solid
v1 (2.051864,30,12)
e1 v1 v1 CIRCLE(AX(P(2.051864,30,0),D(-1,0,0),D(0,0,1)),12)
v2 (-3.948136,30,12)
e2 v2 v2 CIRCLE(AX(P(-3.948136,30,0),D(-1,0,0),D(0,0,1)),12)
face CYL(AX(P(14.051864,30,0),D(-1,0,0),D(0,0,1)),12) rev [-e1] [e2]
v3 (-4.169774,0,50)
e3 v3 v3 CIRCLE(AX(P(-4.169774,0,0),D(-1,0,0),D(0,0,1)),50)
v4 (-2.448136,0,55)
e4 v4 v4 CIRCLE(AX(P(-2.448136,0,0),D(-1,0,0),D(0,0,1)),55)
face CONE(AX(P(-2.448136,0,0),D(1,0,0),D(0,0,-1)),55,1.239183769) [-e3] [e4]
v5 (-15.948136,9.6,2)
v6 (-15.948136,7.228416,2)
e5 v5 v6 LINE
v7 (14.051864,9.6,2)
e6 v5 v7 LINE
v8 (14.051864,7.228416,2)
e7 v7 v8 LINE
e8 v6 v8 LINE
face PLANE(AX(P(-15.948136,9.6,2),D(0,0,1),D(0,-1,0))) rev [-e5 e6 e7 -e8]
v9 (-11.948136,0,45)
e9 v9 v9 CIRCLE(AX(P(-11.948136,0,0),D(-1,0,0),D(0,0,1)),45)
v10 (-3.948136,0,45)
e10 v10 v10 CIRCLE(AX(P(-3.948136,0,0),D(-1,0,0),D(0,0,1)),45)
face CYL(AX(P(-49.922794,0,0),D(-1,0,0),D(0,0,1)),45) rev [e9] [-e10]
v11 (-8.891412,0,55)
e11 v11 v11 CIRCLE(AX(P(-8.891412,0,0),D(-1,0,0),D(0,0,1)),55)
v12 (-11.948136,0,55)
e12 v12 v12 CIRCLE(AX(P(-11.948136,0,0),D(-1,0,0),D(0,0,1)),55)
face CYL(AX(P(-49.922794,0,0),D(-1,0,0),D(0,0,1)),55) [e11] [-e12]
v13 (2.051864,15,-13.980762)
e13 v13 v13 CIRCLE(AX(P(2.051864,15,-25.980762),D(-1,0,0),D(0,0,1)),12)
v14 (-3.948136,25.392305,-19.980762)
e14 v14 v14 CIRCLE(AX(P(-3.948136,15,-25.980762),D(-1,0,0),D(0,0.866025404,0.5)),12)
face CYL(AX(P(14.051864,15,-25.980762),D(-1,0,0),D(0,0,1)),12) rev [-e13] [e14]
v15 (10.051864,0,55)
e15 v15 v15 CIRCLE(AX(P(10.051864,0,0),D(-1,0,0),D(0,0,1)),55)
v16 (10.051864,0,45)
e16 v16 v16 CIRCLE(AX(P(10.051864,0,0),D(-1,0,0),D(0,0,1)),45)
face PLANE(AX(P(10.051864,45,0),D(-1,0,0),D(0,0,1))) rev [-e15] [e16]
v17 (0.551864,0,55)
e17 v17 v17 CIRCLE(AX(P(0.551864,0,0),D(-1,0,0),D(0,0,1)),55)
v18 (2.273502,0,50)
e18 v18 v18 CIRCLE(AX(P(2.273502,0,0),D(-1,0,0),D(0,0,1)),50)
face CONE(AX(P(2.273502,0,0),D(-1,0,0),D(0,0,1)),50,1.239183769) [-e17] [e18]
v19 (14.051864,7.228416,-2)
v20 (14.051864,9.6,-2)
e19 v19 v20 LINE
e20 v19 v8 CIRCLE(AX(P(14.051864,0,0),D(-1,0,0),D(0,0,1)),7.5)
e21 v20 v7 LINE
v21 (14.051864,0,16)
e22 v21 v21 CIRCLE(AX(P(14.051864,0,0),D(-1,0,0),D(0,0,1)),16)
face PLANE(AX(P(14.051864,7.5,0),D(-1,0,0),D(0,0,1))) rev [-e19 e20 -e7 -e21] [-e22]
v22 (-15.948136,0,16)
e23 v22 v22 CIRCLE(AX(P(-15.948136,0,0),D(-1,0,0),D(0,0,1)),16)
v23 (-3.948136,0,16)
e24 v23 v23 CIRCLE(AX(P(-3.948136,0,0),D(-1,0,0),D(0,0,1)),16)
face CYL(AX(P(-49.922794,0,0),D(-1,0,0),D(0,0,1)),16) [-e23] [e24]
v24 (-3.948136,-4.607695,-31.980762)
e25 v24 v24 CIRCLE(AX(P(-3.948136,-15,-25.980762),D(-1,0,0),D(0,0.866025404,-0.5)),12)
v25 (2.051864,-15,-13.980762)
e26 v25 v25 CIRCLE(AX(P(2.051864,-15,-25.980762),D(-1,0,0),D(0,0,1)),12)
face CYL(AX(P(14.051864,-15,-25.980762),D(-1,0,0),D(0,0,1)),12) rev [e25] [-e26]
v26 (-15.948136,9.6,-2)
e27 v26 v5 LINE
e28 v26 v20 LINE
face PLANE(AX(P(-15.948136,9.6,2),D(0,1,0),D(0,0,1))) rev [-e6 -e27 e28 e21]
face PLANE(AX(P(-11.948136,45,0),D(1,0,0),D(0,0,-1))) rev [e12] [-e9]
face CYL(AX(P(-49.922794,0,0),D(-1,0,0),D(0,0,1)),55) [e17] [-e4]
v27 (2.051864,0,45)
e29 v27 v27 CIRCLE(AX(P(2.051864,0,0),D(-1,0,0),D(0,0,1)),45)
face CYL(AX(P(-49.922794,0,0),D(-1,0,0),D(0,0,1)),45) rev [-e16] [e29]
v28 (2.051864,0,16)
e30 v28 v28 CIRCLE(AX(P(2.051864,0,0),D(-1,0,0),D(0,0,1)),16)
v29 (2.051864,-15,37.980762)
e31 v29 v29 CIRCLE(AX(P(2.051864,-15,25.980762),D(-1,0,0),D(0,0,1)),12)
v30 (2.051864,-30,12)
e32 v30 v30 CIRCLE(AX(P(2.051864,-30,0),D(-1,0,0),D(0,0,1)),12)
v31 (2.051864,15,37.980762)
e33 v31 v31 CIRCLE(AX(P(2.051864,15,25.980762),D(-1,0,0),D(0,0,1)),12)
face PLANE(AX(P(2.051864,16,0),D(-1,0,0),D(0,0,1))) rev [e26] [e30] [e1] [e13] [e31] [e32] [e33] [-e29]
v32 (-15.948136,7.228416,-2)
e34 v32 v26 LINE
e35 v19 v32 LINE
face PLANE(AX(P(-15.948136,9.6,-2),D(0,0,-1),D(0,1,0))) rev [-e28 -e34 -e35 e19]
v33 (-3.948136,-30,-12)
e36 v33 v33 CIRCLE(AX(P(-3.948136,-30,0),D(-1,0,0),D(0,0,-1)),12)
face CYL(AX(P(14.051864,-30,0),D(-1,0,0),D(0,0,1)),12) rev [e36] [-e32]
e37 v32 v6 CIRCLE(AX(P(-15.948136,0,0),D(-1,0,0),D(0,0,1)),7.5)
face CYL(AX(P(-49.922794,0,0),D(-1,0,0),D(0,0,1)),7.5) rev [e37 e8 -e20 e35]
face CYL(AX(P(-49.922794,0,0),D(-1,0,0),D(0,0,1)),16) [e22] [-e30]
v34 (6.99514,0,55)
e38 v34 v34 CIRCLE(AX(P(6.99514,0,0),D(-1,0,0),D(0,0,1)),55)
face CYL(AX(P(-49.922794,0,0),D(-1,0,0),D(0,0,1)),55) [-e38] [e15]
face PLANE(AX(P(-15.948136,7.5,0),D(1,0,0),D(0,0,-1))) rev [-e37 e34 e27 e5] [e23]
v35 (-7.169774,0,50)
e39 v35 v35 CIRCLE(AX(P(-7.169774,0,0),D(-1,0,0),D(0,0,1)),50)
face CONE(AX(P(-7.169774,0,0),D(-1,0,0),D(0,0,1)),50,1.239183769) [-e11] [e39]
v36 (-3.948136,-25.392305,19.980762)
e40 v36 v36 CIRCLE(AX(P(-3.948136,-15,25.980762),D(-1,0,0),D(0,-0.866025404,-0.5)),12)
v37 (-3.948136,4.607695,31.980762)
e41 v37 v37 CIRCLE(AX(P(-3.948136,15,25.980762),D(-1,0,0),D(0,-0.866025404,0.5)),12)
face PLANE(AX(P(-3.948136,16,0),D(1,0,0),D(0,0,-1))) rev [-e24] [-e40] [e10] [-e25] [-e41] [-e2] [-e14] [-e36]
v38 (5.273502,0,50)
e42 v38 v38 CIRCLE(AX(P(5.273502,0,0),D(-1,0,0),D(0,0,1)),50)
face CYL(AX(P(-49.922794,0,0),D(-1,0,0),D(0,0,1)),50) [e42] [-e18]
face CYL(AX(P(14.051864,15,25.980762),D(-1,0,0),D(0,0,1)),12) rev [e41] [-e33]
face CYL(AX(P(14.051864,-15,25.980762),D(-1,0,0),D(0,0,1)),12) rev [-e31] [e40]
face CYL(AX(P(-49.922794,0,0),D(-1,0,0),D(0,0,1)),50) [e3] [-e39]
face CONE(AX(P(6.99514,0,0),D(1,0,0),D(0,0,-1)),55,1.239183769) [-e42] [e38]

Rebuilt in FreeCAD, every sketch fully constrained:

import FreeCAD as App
import Part
import Sketcher
Q = App.Units.Quantity


def add_polygon(sketch, points):
    """Adds a closed chain of lines whose ends are joined by coincident constraints."""
    first, n = sketch.GeometryCount, len(points)
    for a, b in zip(points, points[1:] + points[:1]):
        sketch.addGeometry(Part.LineSegment(App.Vector(*a, 0), App.Vector(*b, 0)), False)
    for i in range(n):
        sketch.addConstraint(Sketcher.Constraint("Coincident", first + i, 2, first + (i + 1) % n, 1))

doc = App.newDocument("Part")
body = doc.addObject("PartDesign::Body", "Body")

sketch1 = body.newObject("Sketcher::SketchObject", "Sketch")
sketch1.AttachmentSupport = (doc.getObject("XY_Plane"), [""])
sketch1.MapMode = "FlatFace"
add_polygon(sketch1, [(-15.9, 7.5), (14.1, 7.5), (14.1, 16), (2.1, 16), (2.1, 45), (10.1, 45), (10.1, 55), (7, 55), (5.3, 50), (2.3, 50), (0.6, 55), (-2.4, 55), (-4.2, 50), (-7.2, 50), (-8.9, 55), (-11.9, 55), (-11.9, 45), (-3.9, 45), (-3.9, 16), (-15.9, 16)])
sketch1.addConstraint([
    Sketcher.Constraint("Horizontal", 0),
    Sketcher.Constraint("Vertical", 1),
    Sketcher.Constraint("Horizontal", 2),
    Sketcher.Constraint("Vertical", 3),
    Sketcher.Constraint("Horizontal", 4),
    Sketcher.Constraint("Vertical", 5),
    Sketcher.Constraint("Horizontal", 6),
    Sketcher.Constraint("Horizontal", 8),
    Sketcher.Constraint("Horizontal", 10),
    Sketcher.Constraint("Horizontal", 12),
    Sketcher.Constraint("Horizontal", 14),
    Sketcher.Constraint("Vertical", 15),
    Sketcher.Constraint("Horizontal", 16),
    Sketcher.Constraint("Vertical", 17),
    Sketcher.Constraint("Horizontal", 18),
    Sketcher.Constraint("Vertical", 19),
    Sketcher.Constraint("Parallel", 7, 11),
    Sketcher.Constraint("Parallel", 9, 13),
    Sketcher.Constraint("Horizontal", 6, 2, 9, 2),
    Sketcher.Constraint("Horizontal", 8, 2, 11, 2),
    Sketcher.Constraint("Horizontal", 10, 2, 13, 2),
    Sketcher.Constraint("Horizontal", 4, 2, 15, 2),
    Sketcher.Constraint("Horizontal", 2, 2, 17, 2),
    Sketcher.Constraint("Equal", 8, 10),
    Sketcher.Constraint("Equal", 10, 12),
    Sketcher.Constraint("Equal", 6, 14),
    Sketcher.Constraint("Equal", 4, 16),
    Sketcher.Constraint("Equal", 2, 18),
    Sketcher.Constraint("Equal", 7, 9),
    Sketcher.Constraint("DistanceX", 0, 1, 0, 2, 30.0),
    Sketcher.Constraint("DistanceX", 2, 2, 2, 1, 12.0),
    Sketcher.Constraint("DistanceX", 4, 1, 4, 2, 8.0),
    Sketcher.Constraint("DistanceX", 8, 2, 8, 1, 3.0),
    Sketcher.Constraint("DistanceY", 3, 1, 3, 2, 29.0),
    Sketcher.Constraint("DistanceY", 5, 1, 5, 2, 10.0),
    Sketcher.Constraint("Angle", 7, Q("-109 deg")),
    Sketcher.Constraint("DistanceY", 1, 1, 1, 2, 8.5),
    Sketcher.Constraint("DistanceY", -1, 1, 1, 2, 16.0),
    Sketcher.Constraint("DistanceY", -1, 1, 7, 2, 50.0),
    Sketcher.Constraint("DistanceX", -1, 1, 6, 2, 6.99514),
])
revolution = body.newObject("PartDesign::Revolution", "Revolution")
revolution.Profile = sketch1
revolution.ReferenceAxis = (sketch1, ["H_Axis"])
revolution.Angle = 360

sketch2 = body.newObject("Sketcher::SketchObject", "Sketch001")
sketch2.AttachmentSupport = (doc.getObject("YZ_Plane"), [""])
sketch2.MapMode = "FlatFace"
sketch2.AttachmentOffset = App.Placement(App.Vector(0, 0, 14.051864), App.Rotation())
add_polygon(sketch2, [(9.6, 2), (0, 2), (0, -2), (9.6, -2)])
sketch2.addConstraint([
    Sketcher.Constraint("Horizontal", 0),
    Sketcher.Constraint("Vertical", 1),
    Sketcher.Constraint("Horizontal", 2),
    Sketcher.Constraint("Vertical", 3),
    Sketcher.Constraint("Symmetric", 0, 2, 1, 2, -1, 1),
    Sketcher.Constraint("DistanceY", 1, 2, 1, 1, 4.0),
    Sketcher.Constraint("DistanceX", 0, 2, 0, 1, 9.6),
])
pocket1 = body.newObject("PartDesign::Pocket", "Pocket")
pocket1.Profile = sketch2
pocket1.Type = "ThroughAll"

sketch3 = body.newObject("Sketcher::SketchObject", "Sketch002")
sketch3.AttachmentSupport = (doc.getObject("YZ_Plane"), [""])
sketch3.MapMode = "FlatFace"
sketch3.AttachmentOffset = App.Placement(App.Vector(0, 0, -3.948136), App.Rotation())
sketch3.addGeometry(Part.Circle(App.Vector(30, 0, 0), App.Vector(0, 0, 1), 12), False)
sketch3.addConstraint([
    Sketcher.Constraint("PointOnObject", 0, 3, -1),
    Sketcher.Constraint("Diameter", 0, 24.0),
    Sketcher.Constraint("DistanceX", -1, 1, 0, 3, 30.0),
])
pocket2 = body.newObject("PartDesign::Pocket", "Pocket001")
pocket2.Profile = sketch3
pocket2.Type = "ThroughAll"
pocket2.Reversed = True
doc.recompute()

polarpattern = body.newObject("PartDesign::PolarPattern", "PolarPattern")
polarpattern.Originals = [pocket2]
polarpattern.Axis = (doc.getObject("X_Axis"), [""])
polarpattern.Angle = 360
polarpattern.Occurrences = 6
body.Tip = polarpattern

doc.recompute()
